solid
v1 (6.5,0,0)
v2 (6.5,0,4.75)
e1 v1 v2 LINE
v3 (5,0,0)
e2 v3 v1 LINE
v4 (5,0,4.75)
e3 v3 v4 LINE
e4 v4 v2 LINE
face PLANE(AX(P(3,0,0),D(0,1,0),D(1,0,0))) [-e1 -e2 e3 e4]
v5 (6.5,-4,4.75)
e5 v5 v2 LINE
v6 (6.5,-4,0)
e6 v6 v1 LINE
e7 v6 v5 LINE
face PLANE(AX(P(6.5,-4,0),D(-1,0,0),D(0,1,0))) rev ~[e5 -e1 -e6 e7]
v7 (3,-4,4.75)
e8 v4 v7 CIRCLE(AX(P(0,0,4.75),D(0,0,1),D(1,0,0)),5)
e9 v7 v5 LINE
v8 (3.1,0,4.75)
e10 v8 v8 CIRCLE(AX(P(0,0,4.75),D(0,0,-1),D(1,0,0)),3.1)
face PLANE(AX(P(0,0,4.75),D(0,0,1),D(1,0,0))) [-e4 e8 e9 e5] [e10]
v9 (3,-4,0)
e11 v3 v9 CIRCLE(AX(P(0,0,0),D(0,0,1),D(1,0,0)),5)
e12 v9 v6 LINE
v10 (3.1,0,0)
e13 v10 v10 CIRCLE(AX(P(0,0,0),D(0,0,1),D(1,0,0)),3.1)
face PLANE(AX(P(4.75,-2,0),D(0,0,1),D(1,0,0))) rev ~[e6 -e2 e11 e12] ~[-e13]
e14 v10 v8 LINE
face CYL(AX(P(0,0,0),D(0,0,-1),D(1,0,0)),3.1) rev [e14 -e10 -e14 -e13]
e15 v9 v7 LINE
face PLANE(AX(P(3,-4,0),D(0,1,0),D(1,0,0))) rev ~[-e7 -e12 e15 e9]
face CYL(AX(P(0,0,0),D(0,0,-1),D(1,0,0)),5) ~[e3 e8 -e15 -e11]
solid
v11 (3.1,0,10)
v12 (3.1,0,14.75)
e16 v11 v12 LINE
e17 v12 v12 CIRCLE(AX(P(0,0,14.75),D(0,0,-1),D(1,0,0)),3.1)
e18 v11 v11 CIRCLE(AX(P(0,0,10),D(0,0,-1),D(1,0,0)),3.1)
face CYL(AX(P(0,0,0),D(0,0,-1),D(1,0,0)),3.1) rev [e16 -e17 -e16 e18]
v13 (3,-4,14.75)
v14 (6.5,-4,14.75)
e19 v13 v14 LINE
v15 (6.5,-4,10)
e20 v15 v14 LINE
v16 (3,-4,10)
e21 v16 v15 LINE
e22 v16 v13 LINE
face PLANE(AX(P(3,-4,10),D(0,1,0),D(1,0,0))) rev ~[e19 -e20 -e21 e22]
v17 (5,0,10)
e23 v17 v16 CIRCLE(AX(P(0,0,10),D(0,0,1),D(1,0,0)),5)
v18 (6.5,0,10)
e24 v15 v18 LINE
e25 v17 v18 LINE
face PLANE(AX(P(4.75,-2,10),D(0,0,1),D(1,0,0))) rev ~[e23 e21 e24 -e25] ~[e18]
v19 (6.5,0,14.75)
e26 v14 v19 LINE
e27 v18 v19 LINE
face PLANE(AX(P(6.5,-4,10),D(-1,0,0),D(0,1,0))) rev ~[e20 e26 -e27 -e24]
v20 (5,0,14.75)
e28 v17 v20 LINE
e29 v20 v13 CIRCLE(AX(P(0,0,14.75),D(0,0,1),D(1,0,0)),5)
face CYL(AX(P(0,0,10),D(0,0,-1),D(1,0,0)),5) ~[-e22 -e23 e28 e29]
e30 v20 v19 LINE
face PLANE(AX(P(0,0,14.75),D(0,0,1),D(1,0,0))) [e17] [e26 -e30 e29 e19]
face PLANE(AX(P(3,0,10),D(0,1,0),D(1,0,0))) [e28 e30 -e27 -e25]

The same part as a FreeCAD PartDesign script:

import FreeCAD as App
import Part
import Sketcher
Q = App.Units.Quantity

doc = App.newDocument("Part")
body = doc.addObject("PartDesign::Body", "Body")

sketch1 = doc.addObject("Sketcher::SketchObject", "Sketch")
body.addObject(sketch1)
sketch1.AttachmentSupport = (doc.XY_Plane, [""])
sketch1.MapMode = "FlatFace"
sketch1.addGeometry(Part.Circle(App.Vector(0, 0, 0), App.Vector(0, 0, 1), 3.1), False)
sketch1.addConstraint(Sketcher.Constraint("Coincident", 0, 3, -1, 1))
sketch1.addConstraint(Sketcher.Constraint("Diameter", 0, Q("6.2 mm")))
pad1 = doc.addObject("PartDesign::Pad", "Pad")
body.addObject(pad1)
pad1.Profile = sketch1
pad1.Length = 20
body2 = doc.addObject("PartDesign::Body", "Body001")

sketch2 = doc.addObject("Sketcher::SketchObject", "Sketch001")
body2.addObject(sketch2)
sketch2.AttachmentSupport = (doc.getObject("XY_Plane001"), [""])
sketch2.MapMode = "FlatFace"
sketch2.AttachmentOffset = App.Placement(App.Vector(0, 0, 10), App.Rotation())
sketch2.addGeometry(Part.Circle(App.Vector(0, 0, 0), App.Vector(0, 0, 1), 5), False)
sketch2.addConstraint(Sketcher.Constraint("Coincident", 0, 3, -1, 1))
sketch2.addConstraint(Sketcher.Constraint("Diameter", 0, Q("10 mm")))
pad2 = doc.addObject("PartDesign::Pad", "Pad001")
body2.addObject(pad2)
pad2.Profile = sketch2
pad2.Length = 4.75
body3 = doc.addObject("PartDesign::Body", "Body002")

sketch3 = doc.addObject("Sketcher::SketchObject", "Sketch002")
body3.addObject(sketch3)
sketch3.AttachmentSupport = (doc.getObject("XY_Plane002"), [""])
sketch3.MapMode = "FlatFace"
sketch3.addGeometry(Part.LineSegment(App.Vector(3, 0, 0), App.Vector(3, -4, 0)), False)
sketch3.addGeometry(Part.LineSegment(App.Vector(3, -4, 0), App.Vector(6.5, -4, 0)), False)
sketch3.addGeometry(Part.LineSegment(App.Vector(6.5, -4, 0), App.Vector(6.5, 0, 0)), False)
sketch3.addGeometry(Part.LineSegment(App.Vector(6.5, 0, 0), App.Vector(3, 0, 0)), False)
sketch3.addConstraint(Sketcher.Constraint("Coincident", 0, 2, 1, 1))
sketch3.addConstraint(Sketcher.Constraint("Coincident", 1, 2, 2, 1))
sketch3.addConstraint(Sketcher.Constraint("Coincident", 2, 2, 3, 1))
sketch3.addConstraint(Sketcher.Constraint("Coincident", 3, 2, 0, 1))
sketch3.addConstraint(Sketcher.Constraint("Vertical", 0))
sketch3.addConstraint(Sketcher.Constraint("Horizontal", 1))
sketch3.addConstraint(Sketcher.Constraint("Vertical", 2))
sketch3.addConstraint(Sketcher.Constraint("Horizontal", 3))
sketch3.addConstraint(Sketcher.Constraint("PointOnObject", 2, 2, -1))
sketch3.addConstraint(Sketcher.Constraint("DistanceY", 0, 2, 0, 1, Q("4 mm")))
sketch3.addConstraint(Sketcher.Constraint("DistanceX", 1, 1, 1, 2, Q("3.5 mm")))
sketch3.addConstraint(Sketcher.Constraint("DistanceX", -1, 1, 0, 2, Q("3 mm")))
pad3 = doc.addObject("PartDesign::Pad", "Pad002")
body3.addObject(pad3)
pad3.Profile = sketch3
pad3.Length = 4.75
body4 = doc.addObject("PartDesign::Body", "Body003")

sketch4 = doc.addObject("Sketcher::SketchObject", "Sketch003")
body4.addObject(sketch4)
sketch4.AttachmentSupport = (doc.getObject("XY_Plane003"), [""])
sketch4.MapMode = "FlatFace"
sketch4.AttachmentOffset = App.Placement(App.Vector(0, 0, 10), App.Rotation())
sketch4.addGeometry(Part.LineSegment(App.Vector(3, 0, 0), App.Vector(3, -4, 0)), False)
sketch4.addGeometry(Part.LineSegment(App.Vector(3, -4, 0), App.Vector(6.5, -4, 0)), False)
sketch4.addGeometry(Part.LineSegment(App.Vector(6.5, -4, 0), App.Vector(6.5, 0, 0)), False)
sketch4.addGeometry(Part.LineSegment(App.Vector(6.5, 0, 0), App.Vector(3, 0, 0)), False)
sketch4.addConstraint(Sketcher.Constraint("Coincident", 0, 2, 1, 1))
sketch4.addConstraint(Sketcher.Constraint("Coincident", 1, 2, 2, 1))
sketch4.addConstraint(Sketcher.Constraint("Coincident", 2, 2, 3, 1))
sketch4.addConstraint(Sketcher.Constraint("Coincident", 3, 2, 0, 1))
sketch4.addConstraint(Sketcher.Constraint("Vertical", 0))
sketch4.addConstraint(Sketcher.Constraint("Horizontal", 1))
sketch4.addConstraint(Sketcher.Constraint("Vertical", 2))
sketch4.addConstraint(Sketcher.Constraint("Horizontal", 3))
sketch4.addConstraint(Sketcher.Constraint("PointOnObject", 2, 2, -1))
sketch4.addConstraint(Sketcher.Constraint("DistanceY", 0, 2, 0, 1, Q("4 mm")))
sketch4.addConstraint(Sketcher.Constraint("DistanceX", 1, 1, 1, 2, Q("3.5 mm")))
sketch4.addConstraint(Sketcher.Constraint("DistanceX", -1, 1, 0, 2, Q("3 mm")))
pad4 = doc.addObject("PartDesign::Pad", "Pad003")
body4.addObject(pad4)
pad4.Profile = sketch4
pad4.Length = 4.75
body5 = doc.addObject("PartDesign::Body", "Body004")
body5.AllowCompound = True

sketch5 = doc.addObject("Sketcher::SketchObject", "Sketch004")
body5.addObject(sketch5)
sketch5.AttachmentSupport = (doc.getObject("XY_Plane004"), [""])
sketch5.MapMode = "FlatFace"
sketch5.addGeometry(Part.Circle(App.Vector(0, 0, 0), App.Vector(0, 0, 1), 5), False)
sketch5.addConstraint(Sketcher.Constraint("Coincident", 0, 3, -1, 1))
sketch5.addConstraint(Sketcher.Constraint("Diameter", 0, Q("10 mm")))
pad5 = doc.addObject("PartDesign::Pad", "Pad004")
body5.addObject(pad5)
pad5.Profile = sketch5
pad5.Length = 4.75
doc.recompute()

boolean = doc.addObject("PartDesign::Boolean", "Boolean")
body5.addObject(boolean)
boolean.Type = "Fuse"
boolean.addObjects([body2])
doc.recompute()

boolean2 = doc.addObject("PartDesign::Boolean", "Boolean001")
body5.addObject(boolean2)
boolean2.Type = "Fuse"
boolean2.addObjects([body3])
doc.recompute()

boolean3 = doc.addObject("PartDesign::Boolean", "Boolean002")
body5.addObject(boolean3)
boolean3.Type = "Fuse"
boolean3.addObjects([body4])
doc.recompute()

boolean4 = doc.addObject("PartDesign::Boolean", "Boolean003")
body5.addObject(boolean4)
boolean4.Type = "Cut"
boolean4.addObjects([body])

doc.recompute()
